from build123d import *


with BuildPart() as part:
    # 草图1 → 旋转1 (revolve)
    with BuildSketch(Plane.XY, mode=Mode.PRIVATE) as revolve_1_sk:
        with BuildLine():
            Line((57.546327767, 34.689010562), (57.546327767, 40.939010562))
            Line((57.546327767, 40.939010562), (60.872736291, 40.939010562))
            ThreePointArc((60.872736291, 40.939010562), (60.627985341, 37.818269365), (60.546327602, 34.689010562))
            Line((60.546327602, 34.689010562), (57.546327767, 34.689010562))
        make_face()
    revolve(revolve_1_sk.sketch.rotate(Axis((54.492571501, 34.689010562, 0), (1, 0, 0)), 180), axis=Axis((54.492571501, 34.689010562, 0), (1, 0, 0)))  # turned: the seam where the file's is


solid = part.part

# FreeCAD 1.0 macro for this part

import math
import FreeCAD as App
import Part
import Sketcher
from FreeCAD import Vector
Q = App.Units.Quantity

doc = App.newDocument("Part")
body = doc.addObject("PartDesign::Body", "Body")

# Sketch on XY plane
sketch1 = body.newObject("Sketcher::SketchObject", "Sketch")
sketch1.AttachmentSupport = (doc.getObject("XY_Plane"), [""])
sketch1.MapMode = "FlatFace"
sketch1.addGeometry([
    Part.LineSegment(Vector(57.546328, 40.939011, 0), Vector(57.546328, 34.689011, 0)),
    Part.LineSegment(Vector(57.546328, 34.689011, 0), Vector(60.546328, 34.689011, 0)),
    Part.ArcOfCircle(Part.Circle(Vector(120.546328, 34.689011, 0), Vector(0, 0, 1), 60), math.radians(174.020843), math.radians(180)),
    Part.LineSegment(Vector(60.872736, 40.939011, 0), Vector(57.546328, 40.939011, 0)),
], False)
sketch1.addGeometry(Part.LineSegment(Vector(57.546328, 34.689011, 0), Vector(120.546328, 34.689011, 0)), True)  # axis
sketch1.addConstraint([
    Sketcher.Constraint("Coincident", 0, 2, 1, 1),
    Sketcher.Constraint("Coincident", 1, 2, 2, 2),
    Sketcher.Constraint("Coincident", 2, 1, 3, 1),
    Sketcher.Constraint("Coincident", 3, 2, 0, 1),
    Sketcher.Constraint("Vertical", 0),
    Sketcher.Constraint("Horizontal", 1),
    Sketcher.Constraint("Horizontal", 3),
    Sketcher.Constraint("Horizontal", 4),
    Sketcher.Constraint("Coincident", 4, 1, 0, 2),
    Sketcher.Constraint("Coincident", 4, 2, 2, 3),
    Sketcher.Constraint("Radius", 2, Q("60 mm")),
    Sketcher.Constraint("DistanceX", 1, 1, 1, 2, Q("3 mm")),
    Sketcher.Constraint("DistanceY", 0, 2, 0, 1, Q("6.25 mm")),
    Sketcher.Constraint("DistanceY", -1, 1, 2, 3, Q("34.689011 mm")),
    Sketcher.Constraint("DistanceX", -1, 1, 2, 3, Q("120.546328 mm")),
])
revolution = body.newObject("PartDesign::Revolution", "Revolution")
revolution.Profile = sketch1
revolution.ReferenceAxis = (sketch1, ["Axis0"])
revolution.Angle = 360

doc.recompute()
